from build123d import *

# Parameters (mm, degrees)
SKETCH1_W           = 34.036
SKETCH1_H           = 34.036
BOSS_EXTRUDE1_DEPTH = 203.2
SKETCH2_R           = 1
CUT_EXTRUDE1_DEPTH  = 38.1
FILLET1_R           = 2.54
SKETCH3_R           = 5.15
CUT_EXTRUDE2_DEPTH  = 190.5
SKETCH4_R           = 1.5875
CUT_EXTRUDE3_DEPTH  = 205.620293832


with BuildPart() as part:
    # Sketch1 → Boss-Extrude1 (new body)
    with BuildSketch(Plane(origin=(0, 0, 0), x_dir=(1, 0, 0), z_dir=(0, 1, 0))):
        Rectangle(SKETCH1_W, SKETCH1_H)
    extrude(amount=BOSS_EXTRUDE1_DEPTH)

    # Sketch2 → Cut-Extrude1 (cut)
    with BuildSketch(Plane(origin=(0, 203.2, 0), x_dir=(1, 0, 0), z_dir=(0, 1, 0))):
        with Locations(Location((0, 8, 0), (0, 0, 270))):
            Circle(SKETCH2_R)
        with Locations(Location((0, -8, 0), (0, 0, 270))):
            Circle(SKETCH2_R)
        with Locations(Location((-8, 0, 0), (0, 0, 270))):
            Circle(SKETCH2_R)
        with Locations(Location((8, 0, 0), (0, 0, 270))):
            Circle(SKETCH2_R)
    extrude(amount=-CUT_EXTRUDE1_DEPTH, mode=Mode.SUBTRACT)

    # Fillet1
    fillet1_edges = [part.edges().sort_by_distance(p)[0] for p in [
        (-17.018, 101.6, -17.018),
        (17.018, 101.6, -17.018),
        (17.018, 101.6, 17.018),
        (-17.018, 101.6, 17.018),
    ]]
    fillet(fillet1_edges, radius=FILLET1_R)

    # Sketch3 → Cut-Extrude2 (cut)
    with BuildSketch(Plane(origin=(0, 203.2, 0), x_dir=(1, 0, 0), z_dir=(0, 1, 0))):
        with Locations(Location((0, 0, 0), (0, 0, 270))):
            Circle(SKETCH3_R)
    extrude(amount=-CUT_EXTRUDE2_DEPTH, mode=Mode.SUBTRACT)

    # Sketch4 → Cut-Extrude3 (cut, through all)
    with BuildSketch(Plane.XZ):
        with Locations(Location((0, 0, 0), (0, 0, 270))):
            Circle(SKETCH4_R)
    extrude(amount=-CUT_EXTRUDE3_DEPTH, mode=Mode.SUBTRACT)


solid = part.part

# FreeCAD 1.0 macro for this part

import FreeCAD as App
import Part
import Sketcher
Q = App.Units.Quantity


def edges_at(feature, points):
    """Names of the edges that pass closest to the given points."""
    edges = feature.Shape.Edges
    near = lambda p: min(range(len(edges)), key=lambda i: edges[i].distToShape(Part.Vertex(*p))[0])
    return sorted({f"Edge{near(p) + 1}" for p in points})

doc = App.newDocument("Part")
params = doc.addObject("Spreadsheet::Sheet", "Params")
for row, (alias, value) in enumerate([
    ("sketch1_width", "1.34 in"),
    ("pad1_length", "8 in"),
    ("pocket1_length", "1.5 in"),
    ("fillet_radius", "0.1 in"),
    ("pocket2_length", "7.5 in"),
    ("sketch4_diameter", "0.125 in"),
], start=1):
    params.set(f"A{row}", alias)
    params.set(f"B{row}", "=" + value)
    params.setAlias(f"B{row}", alias)

body = doc.addObject("PartDesign::Body", "Body")

# Sketch on XZ plane
sketch1 = body.newObject("Sketcher::SketchObject", "Sketch")
sketch1.AttachmentSupport = (doc.getObject("XZ_Plane"), [""])
sketch1.MapMode = "FlatFace"
sketch1.addGeometry([
    Part.LineSegment(App.Vector(-17, -17, 0), App.Vector(-17, 17, 0)),
    Part.LineSegment(App.Vector(-17, 17, 0), App.Vector(17, 17, 0)),
    Part.LineSegment(App.Vector(17, 17, 0), App.Vector(17, -17, 0)),
    Part.LineSegment(App.Vector(17, -17, 0), App.Vector(-17, -17, 0)),
], False)
sketch1.addConstraint([
    Sketcher.Constraint("Coincident", 0, 2, 1, 1),
    Sketcher.Constraint("Coincident", 1, 2, 2, 1),
    Sketcher.Constraint("Coincident", 2, 2, 3, 1),
    Sketcher.Constraint("Coincident", 3, 2, 0, 1),
    Sketcher.Constraint("Vertical", 0),
    Sketcher.Constraint("Horizontal", 1),
    Sketcher.Constraint("Vertical", 2),
    Sketcher.Constraint("Horizontal", 3),
    Sketcher.Constraint("Symmetric", 0, 2, 2, 2, -1, 1),
    Sketcher.Constraint("Equal", 3, 0),
    Sketcher.Constraint("DistanceX", 1, 1, 1, 2, Q("1.34 in")),
])
sketch1.setExpression("Constraints[10]", "Params.sketch1_width")
pad1 = body.newObject("PartDesign::Pad", "Pad")
pad1.Profile = sketch1
pad1.setExpression("Length", "Params.pad1_length")
pad1.Reversed = True

# Sketch on XZ plane
sketch2 = body.newObject("Sketcher::SketchObject", "Sketch001")
sketch2.AttachmentSupport = (doc.getObject("XZ_Plane"), [""])
sketch2.MapMode = "FlatFace"
sketch2.AttachmentOffset = App.Placement(App.Vector(0, 0, -8 * 25.4), App.Rotation())
sketch2.addGeometry([
    Part.Circle(App.Vector(0, -8, 0), App.Vector(0, 0, 1), 1),
    Part.Circle(App.Vector(0, 8, 0), App.Vector(0, 0, 1), 1),
    Part.Circle(App.Vector(-8, 0, 0), App.Vector(0, 0, 1), 1),
    Part.Circle(App.Vector(8, 0, 0), App.Vector(0, 0, 1), 1),
], False)
sketch2.addConstraint([
    Sketcher.Constraint("Equal", 0, 1),
    Sketcher.Constraint("Equal", 1, 2),
    Sketcher.Constraint("Equal", 2, 3),
    Sketcher.Constraint("Symmetric", 0, 3, 1, 3, -1, 1),
    Sketcher.Constraint("Symmetric", 2, 3, 3, 3, -1, 1),
    Sketcher.Constraint("PointOnObject", 0, 3, -2),
    Sketcher.Constraint("PointOnObject", 2, 3, -1),
    Sketcher.Constraint("Diameter", 0, Q("2 mm")),
    Sketcher.Constraint("DistanceY", 0, 3, -1, 1, Q("8 mm")),
    Sketcher.Constraint("DistanceX", 2, 3, -1, 1, Q("8 mm")),
])
pocket1 = body.newObject("PartDesign::Pocket", "Pocket")
pocket1.Profile = sketch2
pocket1.setExpression("Length", "Params.pocket1_length")
pocket1.Reversed = True
doc.recompute()

fillet = body.newObject("PartDesign::Fillet", "Fillet")
fillet.Base = (pocket1, edges_at(pocket1, [
    (-17.018, 101.6, -17.018),
    (17.018, 101.6, -17.018),
    (17.018, 101.6, 17.018),
    (-17.018, 101.6, 17.018),
]))
fillet.setExpression("Radius", "Params.fillet_radius")

# Sketch on XZ plane
sketch3 = body.newObject("Sketcher::SketchObject", "Sketch002")
sketch3.AttachmentSupport = (doc.getObject("XZ_Plane"), [""])
sketch3.MapMode = "FlatFace"
sketch3.AttachmentOffset = App.Placement(App.Vector(0, 0, -8 * 25.4), App.Rotation())
sketch3.addGeometry(Part.Circle(App.Vector(0, 0, 0), App.Vector(0, 0, 1), 5), False)
sketch3.addConstraint([
    Sketcher.Constraint("Coincident", 0, 3, -1, 1),
    Sketcher.Constraint("Diameter", 0, Q("10.3 mm")),
])
pocket2 = body.newObject("PartDesign::Pocket", "Pocket001")
pocket2.Profile = sketch3
pocket2.setExpression("Length", "Params.pocket2_length")
pocket2.Reversed = True

# Sketch on XZ plane
sketch4 = body.newObject("Sketcher::SketchObject", "Sketch003")
sketch4.AttachmentSupport = (doc.getObject("XZ_Plane"), [""])
sketch4.MapMode = "FlatFace"
sketch4.addGeometry(Part.Circle(App.Vector(0, 0, 0), App.Vector(0, 0, 1), 1.6), False)
sketch4.addConstraint([
    Sketcher.Constraint("Coincident", 0, 3, -1, 1),
    Sketcher.Constraint("Diameter", 0, Q("0.125 in")),
])
sketch4.setExpression("Constraints[1]", "Params.sketch4_diameter")
pocket3 = body.newObject("PartDesign::Pocket", "Pocket002")
pocket3.Profile = sketch4
pocket3.Type = "ThroughAll"

doc.recompute()
